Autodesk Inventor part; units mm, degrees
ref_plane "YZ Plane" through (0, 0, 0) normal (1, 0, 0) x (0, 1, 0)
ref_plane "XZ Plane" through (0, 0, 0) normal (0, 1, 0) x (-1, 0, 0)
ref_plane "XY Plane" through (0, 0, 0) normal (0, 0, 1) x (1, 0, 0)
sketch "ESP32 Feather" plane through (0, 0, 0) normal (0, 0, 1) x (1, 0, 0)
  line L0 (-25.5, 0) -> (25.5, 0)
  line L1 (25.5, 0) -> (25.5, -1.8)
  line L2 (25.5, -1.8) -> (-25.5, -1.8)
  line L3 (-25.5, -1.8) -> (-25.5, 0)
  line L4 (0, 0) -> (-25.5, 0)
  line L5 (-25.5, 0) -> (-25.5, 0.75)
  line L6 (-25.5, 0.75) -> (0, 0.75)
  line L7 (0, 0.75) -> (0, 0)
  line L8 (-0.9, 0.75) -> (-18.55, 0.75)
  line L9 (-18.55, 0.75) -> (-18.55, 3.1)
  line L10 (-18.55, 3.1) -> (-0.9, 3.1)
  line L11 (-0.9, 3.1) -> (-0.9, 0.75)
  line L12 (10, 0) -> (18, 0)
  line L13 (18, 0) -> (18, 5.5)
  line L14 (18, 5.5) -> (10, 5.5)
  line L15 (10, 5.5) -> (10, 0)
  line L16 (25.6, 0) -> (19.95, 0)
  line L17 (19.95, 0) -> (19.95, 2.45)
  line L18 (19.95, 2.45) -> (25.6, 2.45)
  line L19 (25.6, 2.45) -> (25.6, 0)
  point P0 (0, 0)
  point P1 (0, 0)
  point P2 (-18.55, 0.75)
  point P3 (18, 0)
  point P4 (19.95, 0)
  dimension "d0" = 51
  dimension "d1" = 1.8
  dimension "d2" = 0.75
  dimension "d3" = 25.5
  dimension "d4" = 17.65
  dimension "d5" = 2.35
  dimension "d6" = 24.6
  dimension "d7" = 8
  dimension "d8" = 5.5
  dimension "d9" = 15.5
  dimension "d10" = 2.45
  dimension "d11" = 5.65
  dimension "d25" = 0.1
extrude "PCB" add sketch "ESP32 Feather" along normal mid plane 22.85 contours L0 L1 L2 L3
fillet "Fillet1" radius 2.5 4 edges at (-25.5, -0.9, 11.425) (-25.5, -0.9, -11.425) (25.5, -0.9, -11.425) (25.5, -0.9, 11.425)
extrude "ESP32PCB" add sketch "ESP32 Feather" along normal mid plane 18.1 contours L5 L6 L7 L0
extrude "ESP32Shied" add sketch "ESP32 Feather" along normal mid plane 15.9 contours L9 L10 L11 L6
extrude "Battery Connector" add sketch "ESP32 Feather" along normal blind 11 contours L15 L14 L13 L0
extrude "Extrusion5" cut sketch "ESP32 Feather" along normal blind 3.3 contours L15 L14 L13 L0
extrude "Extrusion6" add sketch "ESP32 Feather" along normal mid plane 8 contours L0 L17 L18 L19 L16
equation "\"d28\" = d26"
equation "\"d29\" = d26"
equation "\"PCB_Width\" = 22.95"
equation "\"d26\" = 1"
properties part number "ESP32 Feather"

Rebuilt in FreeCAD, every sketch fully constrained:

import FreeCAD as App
import Part
import Sketcher
from FreeCAD import Vector


def edges_at(feature, points):
    """Names of the edges that pass closest to the given points."""
    edges = feature.Shape.Edges
    near = lambda p: min(range(len(edges)), key=lambda i: edges[i].distToShape(Part.Vertex(*p))[0])
    return sorted({f"Edge{near(p) + 1}" for p in points})


def add_polygon(sketch, points):
    """Adds a closed chain of lines whose ends are joined by coincident constraints."""
    first, n = sketch.GeometryCount, len(points)
    for a, b in zip(points, points[1:] + points[:1]):
        sketch.addGeometry(Part.LineSegment(App.Vector(*a, 0), App.Vector(*b, 0)), False)
    for i in range(n):
        sketch.addConstraint(Sketcher.Constraint("Coincident", first + i, 2, first + (i + 1) % n, 1))

doc = App.newDocument("Part")
body = doc.addObject("PartDesign::Body", "Body")

sketch1 = body.newObject("Sketcher::SketchObject", "Sketch")
sketch1.AttachmentSupport = (doc.getObject("XY_Plane"), [""])
sketch1.MapMode = "FlatFace"
add_polygon(sketch1, [(25.5, 0), (-25.5, 0), (-25.5, -1.8), (25.5, -1.8)])
sketch1.addConstraint([
    Sketcher.Constraint("Horizontal", 0),
    Sketcher.Constraint("Vertical", 1),
    Sketcher.Constraint("Horizontal", 2),
    Sketcher.Constraint("Vertical", 3),
    Sketcher.Constraint("Symmetric", 0, 2, 3, 2, -1, 1),
    Sketcher.Constraint("DistanceX", 0, 2, 0, 1, 51.0),
    Sketcher.Constraint("DistanceY", 1, 2, 1, 1, 1.8),
])
pad1 = body.newObject("PartDesign::Pad", "Pad")
pad1.Profile = sketch1
pad1.Length = 22.85
pad1.Midplane = True
doc.recompute()

fillet = body.newObject("PartDesign::Fillet", "Fillet")
fillet.Base = (pad1, edges_at(pad1, [
    (-25.5, -0.9, 11.425),
    (-25.5, -0.9, -11.425),
    (25.5, -0.9, -11.425),
    (25.5, -0.9, 11.425),
]))
fillet.Radius = 2.5

sketch2 = body.newObject("Sketcher::SketchObject", "Sketch001")
sketch2.AttachmentSupport = (doc.getObject("XY_Plane"), [""])
sketch2.MapMode = "FlatFace"
add_polygon(sketch2, [(-25.5, 0.8), (-25.5, 0), (0, 0), (0, 0.8)])
sketch2.addConstraint([
    Sketcher.Constraint("Vertical", 0),
    Sketcher.Constraint("Horizontal", 1),
    Sketcher.Constraint("Vertical", 2),
    Sketcher.Constraint("Horizontal", 3),
    Sketcher.Constraint("Coincident", 1, 2, -1, 1),
    Sketcher.Constraint("DistanceX", 1, 1, 1, 2, 25.5),
    Sketcher.Constraint("DistanceY", 0, 2, 0, 1, 0.75),
])
pad2 = body.newObject("PartDesign::Pad", "Pad001")
pad2.Profile = sketch2
pad2.Length = 18.1
pad2.Midplane = True

sketch3 = body.newObject("Sketcher::SketchObject", "Sketch002")
sketch3.AttachmentSupport = (doc.getObject("XY_Plane"), [""])
sketch3.MapMode = "FlatFace"
add_polygon(sketch3, [(-18.6, 3.1), (-18.6, 0.8), (-0.9, 0.8), (-0.9, 3.1)])
sketch3.addConstraint([
    Sketcher.Constraint("Vertical", 0),
    Sketcher.Constraint("Horizontal", 1),
    Sketcher.Constraint("Vertical", 2),
    Sketcher.Constraint("Horizontal", 3),
    Sketcher.Constraint("DistanceX", 1, 1, 1, 2, 17.65),
    Sketcher.Constraint("DistanceY", 0, 2, 0, 1, 2.35),
    Sketcher.Constraint("DistanceY", -1, 1, 0, 2, 0.75),
    Sketcher.Constraint("DistanceX", 1, 2, -1, 1, 0.9),
])
pad3 = body.newObject("PartDesign::Pad", "Pad002")
pad3.Profile = sketch3
pad3.Length = 15.9
pad3.Midplane = True

sketch4 = body.newObject("Sketcher::SketchObject", "Sketch003")
sketch4.AttachmentSupport = (doc.getObject("XY_Plane"), [""])
sketch4.MapMode = "FlatFace"
add_polygon(sketch4, [(10, 6), (10, 0), (18, 0), (18, 6)])
sketch4.addConstraint([
    Sketcher.Constraint("Vertical", 0),
    Sketcher.Constraint("Horizontal", 1),
    Sketcher.Constraint("Vertical", 2),
    Sketcher.Constraint("Horizontal", 3),
    Sketcher.Constraint("PointOnObject", 0, 2, -1),
    Sketcher.Constraint("DistanceX", 1, 1, 1, 2, 8.0),
    Sketcher.Constraint("DistanceY", 0, 2, 0, 1, 5.5),
    Sketcher.Constraint("DistanceX", -1, 1, 0, 2, 10.0),
])
pad4 = body.newObject("PartDesign::Pad", "Pad003")
pad4.Profile = sketch4
pad4.Length = 11

sketch5 = body.newObject("Sketcher::SketchObject", "Sketch004")
sketch5.AttachmentSupport = (doc.getObject("XY_Plane"), [""])
sketch5.MapMode = "FlatFace"
add_polygon(sketch5, [(10, 6), (10, 0), (18, 0), (18, 6)])
sketch5.addConstraint([
    Sketcher.Constraint("Vertical", 0),
    Sketcher.Constraint("Horizontal", 1),
    Sketcher.Constraint("Vertical", 2),
    Sketcher.Constraint("Horizontal", 3),
    Sketcher.Constraint("PointOnObject", 0, 2, -1),
    Sketcher.Constraint("DistanceX", 1, 1, 1, 2, 8.0),
    Sketcher.Constraint("DistanceY", 0, 2, 0, 1, 5.5),
    Sketcher.Constraint("DistanceX", -1, 1, 0, 2, 10.0),
])
pocket1 = body.newObject("PartDesign::Pocket", "Pocket")
pocket1.Profile = sketch5
pocket1.Length = 3.3
pocket1.Reversed = True

sketch6 = body.newObject("Sketcher::SketchObject", "Sketch005")
sketch6.AttachmentSupport = (doc.getObject("XY_Plane"), [""])
sketch6.MapMode = "FlatFace"
add_polygon(sketch6, [(19.9, 0), (25.6, 0), (25.6, 2.5), (19.9, 2.5)])
sketch6.addConstraint([
    Sketcher.Constraint("Horizontal", 0),
    Sketcher.Constraint("Vertical", 1),
    Sketcher.Constraint("Horizontal", 2),
    Sketcher.Constraint("Vertical", 3),
    Sketcher.Constraint("PointOnObject", 0, 2, -1),
    Sketcher.Constraint("DistanceX", 0, 1, 0, 2, 5.65),
    Sketcher.Constraint("DistanceY", 1, 1, 1, 2, 2.45),
    Sketcher.Constraint("DistanceX", -1, 1, 0, 2, 25.6),
])
pad5 = body.newObject("PartDesign::Pad", "Pad004")
pad5.Profile = sketch6
pad5.Length = 8
pad5.Midplane = True

doc.recompute()
